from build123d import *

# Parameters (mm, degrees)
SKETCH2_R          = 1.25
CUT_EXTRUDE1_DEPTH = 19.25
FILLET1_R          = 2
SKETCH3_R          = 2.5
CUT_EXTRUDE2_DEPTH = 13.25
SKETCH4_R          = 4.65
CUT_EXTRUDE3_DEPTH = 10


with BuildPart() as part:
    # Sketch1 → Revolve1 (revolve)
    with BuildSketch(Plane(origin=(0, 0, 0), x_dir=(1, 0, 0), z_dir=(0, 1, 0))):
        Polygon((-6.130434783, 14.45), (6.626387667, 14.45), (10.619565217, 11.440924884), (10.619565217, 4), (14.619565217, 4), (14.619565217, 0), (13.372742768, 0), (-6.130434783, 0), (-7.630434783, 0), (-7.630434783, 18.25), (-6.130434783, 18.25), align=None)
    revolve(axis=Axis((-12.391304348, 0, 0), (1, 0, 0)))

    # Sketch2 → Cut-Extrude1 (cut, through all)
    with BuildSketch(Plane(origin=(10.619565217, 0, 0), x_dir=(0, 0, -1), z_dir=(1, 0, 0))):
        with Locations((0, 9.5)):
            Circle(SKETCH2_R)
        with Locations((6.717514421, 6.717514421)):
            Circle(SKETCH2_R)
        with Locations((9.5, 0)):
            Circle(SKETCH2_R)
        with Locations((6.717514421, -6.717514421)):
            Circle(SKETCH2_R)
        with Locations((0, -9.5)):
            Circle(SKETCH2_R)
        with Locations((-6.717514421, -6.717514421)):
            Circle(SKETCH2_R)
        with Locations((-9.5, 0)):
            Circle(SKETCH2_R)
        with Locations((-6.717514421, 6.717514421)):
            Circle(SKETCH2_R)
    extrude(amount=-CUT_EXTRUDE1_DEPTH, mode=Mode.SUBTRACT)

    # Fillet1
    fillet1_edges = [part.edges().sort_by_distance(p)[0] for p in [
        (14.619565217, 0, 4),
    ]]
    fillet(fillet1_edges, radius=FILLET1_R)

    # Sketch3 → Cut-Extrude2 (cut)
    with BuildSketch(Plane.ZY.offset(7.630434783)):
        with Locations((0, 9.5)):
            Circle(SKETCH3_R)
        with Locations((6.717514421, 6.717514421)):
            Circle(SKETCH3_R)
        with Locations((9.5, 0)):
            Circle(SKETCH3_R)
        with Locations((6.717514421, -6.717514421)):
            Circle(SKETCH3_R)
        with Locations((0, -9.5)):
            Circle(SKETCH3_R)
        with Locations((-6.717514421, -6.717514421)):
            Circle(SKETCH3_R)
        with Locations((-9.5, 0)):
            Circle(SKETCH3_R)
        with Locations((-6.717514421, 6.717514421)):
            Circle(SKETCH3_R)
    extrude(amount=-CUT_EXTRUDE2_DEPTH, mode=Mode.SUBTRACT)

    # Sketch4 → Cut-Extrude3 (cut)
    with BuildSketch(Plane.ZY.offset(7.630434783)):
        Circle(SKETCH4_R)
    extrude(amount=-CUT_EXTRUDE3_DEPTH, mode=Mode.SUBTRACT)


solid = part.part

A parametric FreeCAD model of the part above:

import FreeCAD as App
import Part
import Sketcher

V = App.Vector
Q = App.Units.Quantity


def edges_at(feature, points):
    """Names of the edges that pass closest to the given points."""
    edges = feature.Shape.Edges
    near = lambda p: min(range(len(edges)), key=lambda i: edges[i].distToShape(Part.Vertex(*p))[0])
    return sorted({f"Edge{near(p) + 1}" for p in points})

doc = App.newDocument("Part")
body = doc.addObject("PartDesign::Body", "Body")

# Sketch on XZ plane
sketch1 = body.newObject("Sketcher::SketchObject", "Sketch")
sketch1.AttachmentSupport = (doc.getObject("XZ_Plane"), [""])
sketch1.MapMode = "FlatFace"
sketch1.addGeometry(Part.LineSegment(V(6.6, -14.4, 0), V(-6.1, -14.4, 0)), False)
sketch1.addGeometry(Part.LineSegment(V(-6.1, -14.4, 0), V(-6.1, -18.2, 0)), False)
sketch1.addGeometry(Part.LineSegment(V(-6.1, -18.2, 0), V(-7.6, -18.2, 0)), False)
sketch1.addGeometry(Part.LineSegment(V(-7.6, -18.2, 0), V(-7.6, 0, 0)), False)
sketch1.addGeometry(Part.LineSegment(V(-7.6, 0, 0), V(14.6, 0, 0)), False)
sketch1.addGeometry(Part.LineSegment(V(14.6, 0, 0), V(14.6, -4, 0)), False)
sketch1.addGeometry(Part.LineSegment(V(14.6, -4, 0), V(10.6, -4, 0)), False)
sketch1.addGeometry(Part.LineSegment(V(10.6, -4, 0), V(10.6, -11.4, 0)), False)
sketch1.addGeometry(Part.LineSegment(V(10.6, -11.4, 0), V(6.6, -14.4, 0)), False)
sketch1.addConstraint(Sketcher.Constraint("Coincident", 0, 2, 1, 1))
sketch1.addConstraint(Sketcher.Constraint("Coincident", 1, 2, 2, 1))
sketch1.addConstraint(Sketcher.Constraint("Coincident", 2, 2, 3, 1))
sketch1.addConstraint(Sketcher.Constraint("Coincident", 3, 2, 4, 1))
sketch1.addConstraint(Sketcher.Constraint("Coincident", 4, 2, 5, 1))
sketch1.addConstraint(Sketcher.Constraint("Coincident", 5, 2, 6, 1))
sketch1.addConstraint(Sketcher.Constraint("Coincident", 6, 2, 7, 1))
sketch1.addConstraint(Sketcher.Constraint("Coincident", 7, 2, 8, 1))
sketch1.addConstraint(Sketcher.Constraint("Coincident", 8, 2, 0, 1))
sketch1.addConstraint(Sketcher.Constraint("Horizontal", 0))
sketch1.addConstraint(Sketcher.Constraint("Vertical", 1))
sketch1.addConstraint(Sketcher.Constraint("Horizontal", 2))
sketch1.addConstraint(Sketcher.Constraint("Vertical", 3))
sketch1.addConstraint(Sketcher.Constraint("Horizontal", 4))
sketch1.addConstraint(Sketcher.Constraint("Vertical", 5))
sketch1.addConstraint(Sketcher.Constraint("Horizontal", 6))
sketch1.addConstraint(Sketcher.Constraint("Vertical", 7))
sketch1.addConstraint(Sketcher.Constraint("PointOnObject", 3, 2, -1))
sketch1.addConstraint(Sketcher.Constraint("Equal", 6, 5))
sketch1.addConstraint(Sketcher.Constraint("DistanceX", 6, 2, 6, 1, 4.0))
sketch1.addConstraint(Sketcher.Constraint("Angle", 8, Q("-143 deg")))
sketch1.addConstraint(Sketcher.Constraint("Distance", 8, 5.0))
sketch1.addConstraint(Sketcher.Constraint("DistanceX", 2, 2, 2, 1, 1.5))
sketch1.addConstraint(Sketcher.Constraint("DistanceY", 1, 2, 1, 1, 3.8))
sketch1.addConstraint(Sketcher.Constraint("DistanceX", 4, 1, 4, 2, 22.25))
sketch1.addConstraint(Sketcher.Constraint("DistanceY", 3, 1, 3, 2, 18.25))
sketch1.addConstraint(Sketcher.Constraint("DistanceX", 0, 2, -1, 1, 6.130435))
revolution = body.newObject("PartDesign::Revolution", "Revolution")
revolution.Profile = sketch1
revolution.ReferenceAxis = (sketch1, ["H_Axis"])
revolution.Angle = 360

# Sketch on YZ plane
sketch2 = body.newObject("Sketcher::SketchObject", "Sketch001")
sketch2.AttachmentSupport = (doc.getObject("YZ_Plane"), [""])
sketch2.MapMode = "FlatFace"
sketch2.AttachmentOffset = App.Placement(V(0, 0, 10.619565), App.Rotation())
sketch2.addGeometry(Part.Circle(V(9.5, 0, 0), V(0, 0, 1), 1.2), False)
sketch2.addGeometry(Part.Circle(V(6.7, -6.7, 0), V(0, 0, 1), 1.2), False)
sketch2.addGeometry(Part.Circle(V(0, -9.5, 0), V(0, 0, 1), 1.2), False)
sketch2.addGeometry(Part.Circle(V(-6.7, -6.7, 0), V(0, 0, 1), 1.2), False)
sketch2.addGeometry(Part.Circle(V(-9.5, 0, 0), V(0, 0, 1), 1.2), False)
sketch2.addGeometry(Part.Circle(V(-6.7, 6.7, 0), V(0, 0, 1), 1.2), False)
sketch2.addGeometry(Part.Circle(V(0, 9.5, 0), V(0, 0, 1), 1.2), False)
sketch2.addGeometry(Part.Circle(V(6.7, 6.7, 0), V(0, 0, 1), 1.2), False)
sketch2.addConstraint(Sketcher.Constraint("Equal", 0, 1))
sketch2.addConstraint(Sketcher.Constraint("Equal", 1, 2))
sketch2.addConstraint(Sketcher.Constraint("Equal", 2, 3))
sketch2.addConstraint(Sketcher.Constraint("Equal", 3, 4))
sketch2.addConstraint(Sketcher.Constraint("Equal", 4, 5))
sketch2.addConstraint(Sketcher.Constraint("Equal", 5, 6))
sketch2.addConstraint(Sketcher.Constraint("Equal", 6, 7))
sketch2.addConstraint(Sketcher.Constraint("Symmetric", 0, 3, 4, 3, -1, 1))
sketch2.addConstraint(Sketcher.Constraint("Symmetric", 1, 3, 5, 3, -1, 1))
sketch2.addConstraint(Sketcher.Constraint("Symmetric", 2, 3, 6, 3, -1, 1))
sketch2.addConstraint(Sketcher.Constraint("Symmetric", 3, 3, 7, 3, -1, 1))
sketch2.addConstraint(Sketcher.Constraint("Symmetric", 1, 3, 3, 3, -2))
sketch2.addConstraint(Sketcher.Constraint("PointOnObject", 0, 3, -1))
sketch2.addConstraint(Sketcher.Constraint("PointOnObject", 2, 3, -2))
sketch2.addConstraint(Sketcher.Constraint("Diameter", 0, 2.5))
sketch2.addConstraint(Sketcher.Constraint("DistanceX", 4, 3, 0, 3, 19.0))
sketch2.addConstraint(Sketcher.Constraint("DistanceY", 2, 3, -1, 1, 9.5))
sketch2.addConstraint(Sketcher.Constraint("DistanceX", 3, 3, 1, 3, 13.435029))
sketch2.addConstraint(Sketcher.Constraint("DistanceY", 3, 3, 5, 3, 13.435029))
pocket1 = body.newObject("PartDesign::Pocket", "Pocket")
pocket1.Profile = sketch2
pocket1.Type = "ThroughAll"
doc.recompute()

fillet = body.newObject("PartDesign::Fillet", "Fillet")
fillet.Base = (pocket1, edges_at(pocket1, [(14.62, 0, 4)]))
fillet.Radius = 2

# Sketch on YZ plane
sketch3 = body.newObject("Sketcher::SketchObject", "Sketch002")
sketch3.AttachmentSupport = (doc.getObject("YZ_Plane"), [""])
sketch3.MapMode = "FlatFace"
sketch3.AttachmentOffset = App.Placement(V(0, 0, -7.630435), App.Rotation())
sketch3.addGeometry(Part.Circle(V(9.5, 0, 0), V(0, 0, 1), 2.5), False)
sketch3.addGeometry(Part.Circle(V(6.7, 6.7, 0), V(0, 0, 1), 2.5), False)
sketch3.addGeometry(Part.Circle(V(0, 9.5, 0), V(0, 0, 1), 2.5), False)
sketch3.addGeometry(Part.Circle(V(-6.7, 6.7, 0), V(0, 0, 1), 2.5), False)
sketch3.addGeometry(Part.Circle(V(-9.5, 0, 0), V(0, 0, 1), 2.5), False)
sketch3.addGeometry(Part.Circle(V(-6.7, -6.7, 0), V(0, 0, 1), 2.5), False)
sketch3.addGeometry(Part.Circle(V(0, -9.5, 0), V(0, 0, 1), 2.5), False)
sketch3.addGeometry(Part.Circle(V(6.7, -6.7, 0), V(0, 0, 1), 2.5), False)
sketch3.addConstraint(Sketcher.Constraint("Equal", 0, 1))
sketch3.addConstraint(Sketcher.Constraint("Equal", 1, 2))
sketch3.addConstraint(Sketcher.Constraint("Equal", 2, 3))
sketch3.addConstraint(Sketcher.Constraint("Equal", 3, 4))
sketch3.addConstraint(Sketcher.Constraint("Equal", 4, 5))
sketch3.addConstraint(Sketcher.Constraint("Equal", 5, 6))
sketch3.addConstraint(Sketcher.Constraint("Equal", 6, 7))
sketch3.addConstraint(Sketcher.Constraint("Symmetric", 0, 3, 4, 3, -1, 1))
sketch3.addConstraint(Sketcher.Constraint("Symmetric", 1, 3, 5, 3, -1, 1))
sketch3.addConstraint(Sketcher.Constraint("Symmetric", 2, 3, 6, 3, -1, 1))
sketch3.addConstraint(Sketcher.Constraint("Symmetric", 3, 3, 7, 3, -1, 1))
sketch3.addConstraint(Sketcher.Constraint("Symmetric", 1, 3, 3, 3, -2))
sketch3.addConstraint(Sketcher.Constraint("PointOnObject", 0, 3, -1))
sketch3.addConstraint(Sketcher.Constraint("PointOnObject", 2, 3, -2))
sketch3.addConstraint(Sketcher.Constraint("Diameter", 0, 5.0))
sketch3.addConstraint(Sketcher.Constraint("DistanceX", 4, 3, 0, 3, 19.0))
sketch3.addConstraint(Sketcher.Constraint("DistanceY", -1, 1, 2, 3, 9.5))
sketch3.addConstraint(Sketcher.Constraint("DistanceX", 3, 3, 1, 3, 13.435029))
sketch3.addConstraint(Sketcher.Constraint("DistanceY", 5, 3, 3, 3, 13.435029))
pocket2 = body.newObject("PartDesign::Pocket", "Pocket001")
pocket2.Profile = sketch3
pocket2.Length = 13.25
pocket2.Reversed = True

# Sketch on YZ plane
sketch4 = body.newObject("Sketcher::SketchObject", "Sketch003")
sketch4.AttachmentSupport = (doc.getObject("YZ_Plane"), [""])
sketch4.MapMode = "FlatFace"
sketch4.AttachmentOffset = App.Placement(V(0, 0, -7.630435), App.Rotation())
sketch4.addGeometry(Part.Circle(V(0, 0, 0), V(0, 0, 1), 4.7), False)
sketch4.addConstraint(Sketcher.Constraint("Coincident", 0, 3, -1, 1))
sketch4.addConstraint(Sketcher.Constraint("Diameter", 0, 9.3))
pocket3 = body.newObject("PartDesign::Pocket", "Pocket002")
pocket3.Profile = sketch4
pocket3.Length = 10
pocket3.Reversed = True

doc.recompute()
